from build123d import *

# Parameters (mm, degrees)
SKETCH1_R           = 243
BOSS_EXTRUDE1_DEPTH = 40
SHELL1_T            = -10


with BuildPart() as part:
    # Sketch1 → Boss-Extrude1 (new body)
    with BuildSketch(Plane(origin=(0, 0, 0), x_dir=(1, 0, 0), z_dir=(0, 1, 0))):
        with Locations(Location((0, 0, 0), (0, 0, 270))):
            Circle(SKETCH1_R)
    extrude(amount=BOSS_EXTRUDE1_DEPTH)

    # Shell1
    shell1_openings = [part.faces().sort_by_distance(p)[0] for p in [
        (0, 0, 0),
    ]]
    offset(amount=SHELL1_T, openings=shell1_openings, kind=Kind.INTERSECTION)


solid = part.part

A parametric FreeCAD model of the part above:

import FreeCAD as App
import Part
import Sketcher


def faces_at(feature, points):
    """Names of the faces that lie closest to the given points."""
    faces = feature.Shape.Faces
    near = lambda p: min(range(len(faces)), key=lambda i: faces[i].distToShape(Part.Vertex(*p))[0])
    return sorted({f"Face{near(p) + 1}" for p in points})

doc = App.newDocument("Part")
body = doc.addObject("PartDesign::Body", "Body")

sketch1 = doc.addObject("Sketcher::SketchObject", "Sketch")
body.addObject(sketch1)
sketch1.AttachmentSupport = (doc.XZ_Plane, [""])
sketch1.MapMode = "FlatFace"
sketch1.addGeometry(Part.Circle(App.Vector(0, 0, 0), App.Vector(0, 0, 1), 243), False)
sketch1.addConstraint(Sketcher.Constraint("Coincident", 0, 3, -1, 1))
sketch1.addConstraint(Sketcher.Constraint("Diameter", 0, 486.0))
pad1 = doc.addObject("PartDesign::Pad", "Pad")
body.addObject(pad1)
pad1.Profile = sketch1
pad1.Length = 40
pad1.Reversed = True
doc.recompute()

thickness = doc.addObject("PartDesign::Thickness", "Thickness")
body.addObject(thickness)
thickness.Base = (pad1, faces_at(pad1, [(0, 0, 0)]))
thickness.Value = 10
thickness.Reversed = True
thickness.Join = "Intersection"

doc.recompute()
